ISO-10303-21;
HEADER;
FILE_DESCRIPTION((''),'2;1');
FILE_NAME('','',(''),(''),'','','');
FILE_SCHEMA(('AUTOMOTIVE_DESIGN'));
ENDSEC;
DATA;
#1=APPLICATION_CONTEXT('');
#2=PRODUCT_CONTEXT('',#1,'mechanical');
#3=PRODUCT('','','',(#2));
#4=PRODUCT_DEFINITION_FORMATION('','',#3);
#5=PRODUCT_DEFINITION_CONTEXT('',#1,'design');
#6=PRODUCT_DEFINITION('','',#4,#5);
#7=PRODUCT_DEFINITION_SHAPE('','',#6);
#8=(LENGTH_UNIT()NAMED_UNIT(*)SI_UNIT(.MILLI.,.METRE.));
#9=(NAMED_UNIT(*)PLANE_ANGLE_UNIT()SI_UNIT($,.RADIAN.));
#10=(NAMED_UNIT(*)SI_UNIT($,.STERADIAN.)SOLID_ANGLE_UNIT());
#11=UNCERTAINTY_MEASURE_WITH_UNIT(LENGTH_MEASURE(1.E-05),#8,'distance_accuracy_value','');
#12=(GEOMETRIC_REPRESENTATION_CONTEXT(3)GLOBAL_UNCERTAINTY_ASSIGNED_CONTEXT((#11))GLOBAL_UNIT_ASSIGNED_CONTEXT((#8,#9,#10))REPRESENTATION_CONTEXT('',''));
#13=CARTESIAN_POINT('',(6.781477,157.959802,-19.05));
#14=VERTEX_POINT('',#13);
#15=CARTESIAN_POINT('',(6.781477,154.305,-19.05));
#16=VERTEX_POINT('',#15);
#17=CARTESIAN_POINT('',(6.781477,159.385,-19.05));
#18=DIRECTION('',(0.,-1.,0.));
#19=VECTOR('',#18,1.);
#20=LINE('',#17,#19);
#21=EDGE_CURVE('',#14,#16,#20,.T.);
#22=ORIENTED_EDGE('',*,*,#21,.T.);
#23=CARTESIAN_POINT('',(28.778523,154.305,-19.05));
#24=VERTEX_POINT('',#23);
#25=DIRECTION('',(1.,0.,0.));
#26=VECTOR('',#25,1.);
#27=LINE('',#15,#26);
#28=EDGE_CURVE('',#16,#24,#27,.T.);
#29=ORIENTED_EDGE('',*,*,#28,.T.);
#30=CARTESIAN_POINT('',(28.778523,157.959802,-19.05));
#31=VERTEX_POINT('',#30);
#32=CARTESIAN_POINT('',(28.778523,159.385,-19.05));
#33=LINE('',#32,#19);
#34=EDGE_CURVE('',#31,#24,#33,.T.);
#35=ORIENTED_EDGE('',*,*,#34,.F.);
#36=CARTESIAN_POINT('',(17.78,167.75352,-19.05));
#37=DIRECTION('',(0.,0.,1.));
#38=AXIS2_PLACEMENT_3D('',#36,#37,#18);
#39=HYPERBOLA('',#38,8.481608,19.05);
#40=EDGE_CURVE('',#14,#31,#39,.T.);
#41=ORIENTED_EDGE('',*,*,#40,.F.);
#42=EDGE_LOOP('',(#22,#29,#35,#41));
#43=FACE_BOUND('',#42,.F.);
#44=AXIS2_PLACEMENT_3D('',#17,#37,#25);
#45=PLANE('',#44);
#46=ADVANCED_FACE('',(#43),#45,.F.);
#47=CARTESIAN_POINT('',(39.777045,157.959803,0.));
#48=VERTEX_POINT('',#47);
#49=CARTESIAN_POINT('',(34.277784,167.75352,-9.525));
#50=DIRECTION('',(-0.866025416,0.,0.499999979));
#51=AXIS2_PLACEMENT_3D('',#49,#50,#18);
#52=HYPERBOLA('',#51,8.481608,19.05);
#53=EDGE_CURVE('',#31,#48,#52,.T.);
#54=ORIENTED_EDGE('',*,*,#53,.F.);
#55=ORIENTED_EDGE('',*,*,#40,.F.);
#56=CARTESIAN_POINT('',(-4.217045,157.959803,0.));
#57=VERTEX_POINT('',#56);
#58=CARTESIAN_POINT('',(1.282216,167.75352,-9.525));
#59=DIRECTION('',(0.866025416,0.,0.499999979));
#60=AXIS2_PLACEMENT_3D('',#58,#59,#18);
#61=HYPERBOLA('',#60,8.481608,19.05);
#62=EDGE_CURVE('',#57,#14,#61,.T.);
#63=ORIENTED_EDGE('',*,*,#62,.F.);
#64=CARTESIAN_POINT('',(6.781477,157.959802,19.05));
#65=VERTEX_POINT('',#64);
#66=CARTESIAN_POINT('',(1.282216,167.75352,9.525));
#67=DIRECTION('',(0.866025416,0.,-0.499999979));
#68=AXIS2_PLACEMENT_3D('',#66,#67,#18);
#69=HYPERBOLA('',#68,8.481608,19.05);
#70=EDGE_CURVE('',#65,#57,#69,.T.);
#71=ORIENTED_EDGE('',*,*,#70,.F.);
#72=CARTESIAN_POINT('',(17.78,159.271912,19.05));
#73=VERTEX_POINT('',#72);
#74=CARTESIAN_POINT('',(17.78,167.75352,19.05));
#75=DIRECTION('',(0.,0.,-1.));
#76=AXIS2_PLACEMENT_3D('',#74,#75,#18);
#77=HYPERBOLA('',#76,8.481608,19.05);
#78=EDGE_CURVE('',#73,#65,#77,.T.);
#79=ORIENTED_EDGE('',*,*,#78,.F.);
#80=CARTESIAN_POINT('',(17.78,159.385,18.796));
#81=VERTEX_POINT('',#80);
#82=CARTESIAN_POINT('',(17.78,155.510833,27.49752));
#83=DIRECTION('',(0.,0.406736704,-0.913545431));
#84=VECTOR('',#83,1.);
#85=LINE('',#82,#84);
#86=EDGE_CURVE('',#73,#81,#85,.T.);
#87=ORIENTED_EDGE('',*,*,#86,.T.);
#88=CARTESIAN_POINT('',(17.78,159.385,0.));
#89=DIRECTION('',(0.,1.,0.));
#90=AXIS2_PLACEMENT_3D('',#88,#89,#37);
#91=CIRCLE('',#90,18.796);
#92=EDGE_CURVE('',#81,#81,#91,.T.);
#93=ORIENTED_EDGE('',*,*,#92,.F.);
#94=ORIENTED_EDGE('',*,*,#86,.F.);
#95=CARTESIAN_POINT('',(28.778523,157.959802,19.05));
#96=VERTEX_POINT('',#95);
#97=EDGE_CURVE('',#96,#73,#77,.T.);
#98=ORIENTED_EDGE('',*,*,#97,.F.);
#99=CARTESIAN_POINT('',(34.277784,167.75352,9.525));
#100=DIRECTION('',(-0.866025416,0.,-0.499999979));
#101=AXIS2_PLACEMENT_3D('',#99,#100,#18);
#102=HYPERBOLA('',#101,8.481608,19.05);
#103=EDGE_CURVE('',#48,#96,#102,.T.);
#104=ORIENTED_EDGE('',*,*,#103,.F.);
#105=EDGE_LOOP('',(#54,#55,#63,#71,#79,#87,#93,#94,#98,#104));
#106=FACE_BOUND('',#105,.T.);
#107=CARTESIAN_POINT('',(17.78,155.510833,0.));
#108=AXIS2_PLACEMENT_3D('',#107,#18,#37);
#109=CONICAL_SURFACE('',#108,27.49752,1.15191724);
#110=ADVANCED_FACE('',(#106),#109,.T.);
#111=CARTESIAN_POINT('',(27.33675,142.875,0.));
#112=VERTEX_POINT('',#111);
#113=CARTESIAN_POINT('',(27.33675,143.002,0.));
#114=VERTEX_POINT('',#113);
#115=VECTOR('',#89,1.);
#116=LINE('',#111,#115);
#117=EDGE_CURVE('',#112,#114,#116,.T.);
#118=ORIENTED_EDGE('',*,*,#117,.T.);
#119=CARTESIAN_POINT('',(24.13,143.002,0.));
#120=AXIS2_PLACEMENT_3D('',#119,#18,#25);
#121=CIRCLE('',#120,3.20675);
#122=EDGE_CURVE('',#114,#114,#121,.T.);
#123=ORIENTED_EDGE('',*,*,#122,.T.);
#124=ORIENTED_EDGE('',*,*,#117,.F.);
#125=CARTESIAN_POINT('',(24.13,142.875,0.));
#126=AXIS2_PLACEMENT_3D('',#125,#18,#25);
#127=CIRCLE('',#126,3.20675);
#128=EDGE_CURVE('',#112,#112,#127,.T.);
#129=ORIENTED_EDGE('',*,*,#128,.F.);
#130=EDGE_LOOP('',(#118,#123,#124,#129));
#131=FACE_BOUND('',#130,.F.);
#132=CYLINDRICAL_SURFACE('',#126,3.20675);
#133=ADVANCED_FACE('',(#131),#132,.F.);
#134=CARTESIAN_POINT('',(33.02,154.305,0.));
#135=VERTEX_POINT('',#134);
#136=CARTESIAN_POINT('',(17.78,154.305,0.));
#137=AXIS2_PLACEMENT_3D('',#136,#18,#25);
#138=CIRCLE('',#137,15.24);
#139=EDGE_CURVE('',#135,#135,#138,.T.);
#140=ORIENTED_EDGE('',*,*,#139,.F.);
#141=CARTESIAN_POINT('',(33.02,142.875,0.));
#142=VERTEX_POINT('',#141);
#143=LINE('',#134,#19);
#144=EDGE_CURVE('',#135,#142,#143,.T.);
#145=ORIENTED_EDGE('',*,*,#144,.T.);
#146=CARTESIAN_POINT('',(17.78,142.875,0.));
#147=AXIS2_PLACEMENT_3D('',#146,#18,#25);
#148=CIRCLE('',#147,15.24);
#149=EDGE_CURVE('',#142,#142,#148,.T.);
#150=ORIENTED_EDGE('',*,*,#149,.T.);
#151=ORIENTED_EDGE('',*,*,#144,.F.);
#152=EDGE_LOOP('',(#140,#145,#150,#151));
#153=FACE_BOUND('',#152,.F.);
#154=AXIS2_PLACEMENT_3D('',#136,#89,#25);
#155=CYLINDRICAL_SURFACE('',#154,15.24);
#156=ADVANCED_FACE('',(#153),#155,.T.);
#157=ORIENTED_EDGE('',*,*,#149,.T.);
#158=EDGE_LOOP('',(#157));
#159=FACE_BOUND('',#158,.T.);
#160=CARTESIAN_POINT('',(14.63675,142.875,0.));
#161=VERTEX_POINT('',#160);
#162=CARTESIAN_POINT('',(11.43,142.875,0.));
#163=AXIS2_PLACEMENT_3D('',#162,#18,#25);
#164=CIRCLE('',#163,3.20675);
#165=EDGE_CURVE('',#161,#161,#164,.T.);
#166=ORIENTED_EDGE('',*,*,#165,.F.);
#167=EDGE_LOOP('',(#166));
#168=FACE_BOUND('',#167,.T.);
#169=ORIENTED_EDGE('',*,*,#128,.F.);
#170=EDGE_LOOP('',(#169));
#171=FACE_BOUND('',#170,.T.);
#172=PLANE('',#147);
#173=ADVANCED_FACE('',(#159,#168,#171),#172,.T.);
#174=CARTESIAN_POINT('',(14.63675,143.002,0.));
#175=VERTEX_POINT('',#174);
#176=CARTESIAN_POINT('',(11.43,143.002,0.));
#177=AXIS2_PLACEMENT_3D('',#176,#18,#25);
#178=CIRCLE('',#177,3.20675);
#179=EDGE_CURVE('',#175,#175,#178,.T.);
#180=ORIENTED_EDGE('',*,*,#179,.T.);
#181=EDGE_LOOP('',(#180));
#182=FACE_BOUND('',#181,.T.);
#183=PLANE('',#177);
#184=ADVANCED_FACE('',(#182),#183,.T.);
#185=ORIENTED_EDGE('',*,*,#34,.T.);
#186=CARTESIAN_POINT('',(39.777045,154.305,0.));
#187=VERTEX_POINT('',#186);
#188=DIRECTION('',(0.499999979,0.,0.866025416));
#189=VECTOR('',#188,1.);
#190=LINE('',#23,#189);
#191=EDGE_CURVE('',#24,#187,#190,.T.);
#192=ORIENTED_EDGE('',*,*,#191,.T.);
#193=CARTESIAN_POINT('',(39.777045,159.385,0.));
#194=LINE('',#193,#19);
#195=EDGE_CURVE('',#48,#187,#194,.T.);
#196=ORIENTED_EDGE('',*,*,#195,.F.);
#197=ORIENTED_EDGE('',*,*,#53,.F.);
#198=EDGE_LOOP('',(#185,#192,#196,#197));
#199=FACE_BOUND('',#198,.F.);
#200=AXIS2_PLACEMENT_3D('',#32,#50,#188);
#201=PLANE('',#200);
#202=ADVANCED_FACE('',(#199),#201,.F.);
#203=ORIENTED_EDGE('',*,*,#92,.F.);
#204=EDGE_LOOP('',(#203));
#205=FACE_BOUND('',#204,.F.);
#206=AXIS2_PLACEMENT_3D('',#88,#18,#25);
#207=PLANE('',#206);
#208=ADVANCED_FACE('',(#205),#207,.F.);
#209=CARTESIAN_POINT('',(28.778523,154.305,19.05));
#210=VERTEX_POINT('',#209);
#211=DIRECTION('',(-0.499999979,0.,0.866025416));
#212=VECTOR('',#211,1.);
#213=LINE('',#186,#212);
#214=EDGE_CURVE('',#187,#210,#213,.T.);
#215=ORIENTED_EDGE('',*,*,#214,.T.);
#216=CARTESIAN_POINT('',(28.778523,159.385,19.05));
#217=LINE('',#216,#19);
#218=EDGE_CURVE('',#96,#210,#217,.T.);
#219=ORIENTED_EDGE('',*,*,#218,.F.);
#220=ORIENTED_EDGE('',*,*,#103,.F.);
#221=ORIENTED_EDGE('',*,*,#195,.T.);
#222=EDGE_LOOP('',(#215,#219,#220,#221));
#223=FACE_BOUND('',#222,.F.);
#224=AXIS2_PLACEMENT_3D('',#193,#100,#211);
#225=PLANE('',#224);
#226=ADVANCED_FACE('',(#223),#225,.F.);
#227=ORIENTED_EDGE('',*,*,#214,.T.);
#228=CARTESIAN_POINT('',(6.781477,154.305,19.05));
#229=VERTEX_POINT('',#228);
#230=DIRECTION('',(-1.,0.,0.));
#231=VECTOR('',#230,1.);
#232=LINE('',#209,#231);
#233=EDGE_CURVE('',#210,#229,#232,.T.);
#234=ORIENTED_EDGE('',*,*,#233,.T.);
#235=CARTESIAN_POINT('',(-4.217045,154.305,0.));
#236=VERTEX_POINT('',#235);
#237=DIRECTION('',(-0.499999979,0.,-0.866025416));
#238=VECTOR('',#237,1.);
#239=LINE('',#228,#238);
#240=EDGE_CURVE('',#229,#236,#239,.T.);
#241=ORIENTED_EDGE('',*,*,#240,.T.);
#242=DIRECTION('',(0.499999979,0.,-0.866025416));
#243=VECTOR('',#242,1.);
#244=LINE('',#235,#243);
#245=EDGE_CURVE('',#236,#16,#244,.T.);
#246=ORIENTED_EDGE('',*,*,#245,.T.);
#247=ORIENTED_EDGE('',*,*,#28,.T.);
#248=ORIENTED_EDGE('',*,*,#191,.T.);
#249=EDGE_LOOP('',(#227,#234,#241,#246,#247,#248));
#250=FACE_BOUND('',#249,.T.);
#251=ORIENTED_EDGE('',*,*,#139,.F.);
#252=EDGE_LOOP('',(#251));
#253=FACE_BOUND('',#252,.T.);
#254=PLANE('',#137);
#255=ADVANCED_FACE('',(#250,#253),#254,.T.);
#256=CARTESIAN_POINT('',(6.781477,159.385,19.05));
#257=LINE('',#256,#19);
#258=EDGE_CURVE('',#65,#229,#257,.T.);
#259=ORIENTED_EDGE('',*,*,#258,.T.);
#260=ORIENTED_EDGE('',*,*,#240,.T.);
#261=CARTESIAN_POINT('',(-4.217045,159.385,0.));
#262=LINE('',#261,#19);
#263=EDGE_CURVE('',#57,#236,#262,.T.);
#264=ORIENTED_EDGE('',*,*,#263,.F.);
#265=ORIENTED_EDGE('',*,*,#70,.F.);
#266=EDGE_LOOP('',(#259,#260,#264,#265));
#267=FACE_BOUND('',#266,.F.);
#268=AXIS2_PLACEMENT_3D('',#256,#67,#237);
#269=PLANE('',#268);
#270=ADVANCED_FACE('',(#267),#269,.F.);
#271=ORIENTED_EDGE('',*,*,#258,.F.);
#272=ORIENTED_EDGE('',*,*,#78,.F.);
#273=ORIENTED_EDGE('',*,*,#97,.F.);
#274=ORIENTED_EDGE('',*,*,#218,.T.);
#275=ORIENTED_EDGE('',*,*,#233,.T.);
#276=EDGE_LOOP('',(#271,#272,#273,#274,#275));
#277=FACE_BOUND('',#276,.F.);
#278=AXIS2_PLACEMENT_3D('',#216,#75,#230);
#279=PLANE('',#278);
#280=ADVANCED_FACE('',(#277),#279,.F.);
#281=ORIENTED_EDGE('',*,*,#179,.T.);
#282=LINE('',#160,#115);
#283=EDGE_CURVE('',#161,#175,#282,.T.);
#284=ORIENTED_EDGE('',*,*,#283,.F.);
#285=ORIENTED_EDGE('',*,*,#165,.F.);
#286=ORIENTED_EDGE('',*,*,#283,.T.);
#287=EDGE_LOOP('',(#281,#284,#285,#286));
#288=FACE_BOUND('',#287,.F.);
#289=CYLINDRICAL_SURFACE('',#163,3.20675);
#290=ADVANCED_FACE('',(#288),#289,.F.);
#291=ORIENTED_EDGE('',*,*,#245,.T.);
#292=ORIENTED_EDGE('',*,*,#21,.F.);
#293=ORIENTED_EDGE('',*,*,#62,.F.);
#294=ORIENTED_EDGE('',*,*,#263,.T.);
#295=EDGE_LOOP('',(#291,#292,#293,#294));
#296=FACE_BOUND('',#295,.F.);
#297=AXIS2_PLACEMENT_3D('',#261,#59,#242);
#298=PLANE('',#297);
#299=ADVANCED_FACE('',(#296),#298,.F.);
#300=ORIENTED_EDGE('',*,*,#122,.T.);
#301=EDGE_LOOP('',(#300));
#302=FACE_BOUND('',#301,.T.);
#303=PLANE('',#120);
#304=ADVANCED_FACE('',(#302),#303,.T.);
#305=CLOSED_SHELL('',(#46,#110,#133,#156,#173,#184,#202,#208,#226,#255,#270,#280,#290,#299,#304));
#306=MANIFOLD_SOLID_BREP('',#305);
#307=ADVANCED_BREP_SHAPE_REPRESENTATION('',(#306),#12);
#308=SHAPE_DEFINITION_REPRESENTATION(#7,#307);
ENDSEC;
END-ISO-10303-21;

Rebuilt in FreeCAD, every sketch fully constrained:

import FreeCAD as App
import Part
import Sketcher

V = App.Vector
Q = App.Units.Quantity


def add_polygon(sketch, points):
    """Adds a closed chain of lines whose ends are joined by coincident constraints."""
    first, n = sketch.GeometryCount, len(points)
    for a, b in zip(points, points[1:] + points[:1]):
        sketch.addGeometry(Part.LineSegment(App.Vector(*a, 0), App.Vector(*b, 0)), False)
    for i in range(n):
        sketch.addConstraint(Sketcher.Constraint("Coincident", first + i, 2, first + (i + 1) % n, 1))

doc = App.newDocument("Part")
body = doc.addObject("PartDesign::Body", "Body")

# Sketch on XZ plane
sketch1 = body.newObject("Sketcher::SketchObject", "Sketch")
sketch1.AttachmentSupport = (doc.getObject("XZ_Plane"), [""])
sketch1.MapMode = "FlatFace"
add_polygon(sketch1, [(22, 0), (11, 19), (-11, 19), (-22, 0), (-11, -19), (11, -19)])  # lines 0-5
sketch1.addConstraint([
    Sketcher.Constraint("Horizontal", 1),
    Sketcher.Constraint("Horizontal", 4),
    Sketcher.Constraint("Symmetric", 0, 2, 3, 2, -1, 1),
    Sketcher.Constraint("Symmetric", 2, 2, 5, 2, -1, 1),
    Sketcher.Constraint("PointOnObject", 2, 2, -1),
    Sketcher.Constraint("Parallel", 2, 5),
    Sketcher.Constraint("Vertical", 1, 2, 3, 2),
    Sketcher.Constraint("Angle", 0, Q("119.999999 deg")),
    Sketcher.Constraint("DistanceY", 3, 2, 1, 2, Q("1.5 in")),
    Sketcher.Constraint("DistanceX", 1, 2, 1, 1, 21.997046),
])
pad1 = body.newObject("PartDesign::Pad", "Pad")
pad1.Profile = sketch1
pad1.Length = Q("0.2 in")

# Sketch on XZ plane
sketch2 = body.newObject("Sketcher::SketchObject", "Sketch001")
sketch2.AttachmentSupport = (doc.getObject("XZ_Plane"), [""])
sketch2.MapMode = "FlatFace"
sketch2.AttachmentOffset = App.Placement(V(0, 0, 0.2 * 25.4), App.Rotation())
sketch2.addGeometry(Part.Circle(V(0, 0, 0), V(0, 0, 1), 15), False)
sketch2.addConstraint([
    Sketcher.Constraint("Coincident", 0, 3, -1, 1),
    Sketcher.Constraint("Diameter", 0, Q("1.2 in")),
])
pad2 = body.newObject("PartDesign::Pad", "Pad001")
pad2.Profile = sketch2
pad2.Length = Q("0.45 in")

# Sketch on YZ plane
sketch3 = body.newObject("Sketcher::SketchObject", "Sketch002")
sketch3.AttachmentSupport = (doc.getObject("YZ_Plane"), [""])
sketch3.MapMode = "FlatFace"
add_polygon(sketch3, [(-4, 27), (4, 10), (15, 26)])  # lines 0-2
sketch3.addConstraint([
    Sketcher.Constraint("Equal", 0, 1),
    Sketcher.Constraint("Equal", 1, 2),
    Sketcher.Constraint("Angle", 0, Q("-65.999996 deg")),
    Sketcher.Constraint("Distance", 0, Q("0.75 in")),
    Sketcher.Constraint("DistanceY", -1, 1, 0, 2, 10.09448),
    Sketcher.Constraint("DistanceX", -1, 1, 0, 2, 3.874167),
])
groove = body.newObject("PartDesign::Groove", "Groove")
groove.Profile = sketch3
groove.ReferenceAxis = (sketch3, ["H_Axis"])
groove.Angle = 360

# Sketch on XZ plane
sketch4 = body.newObject("Sketcher::SketchObject", "Sketch003")
sketch4.AttachmentSupport = (doc.getObject("XZ_Plane"), [""])
sketch4.MapMode = "FlatFace"
sketch4.AttachmentOffset = App.Placement(V(0, 0, 0.65 * 25.4), App.Rotation())
sketch4.addGeometry([
    Part.Circle(V(6.3, 0, 0), V(0, 0, 1), 3.2),
    Part.Circle(V(-6.3, 0, 0), V(0, 0, 1), 3.2),
], False)
sketch4.addConstraint([
    Sketcher.Constraint("Equal", 0, 1),
    Sketcher.Constraint("Symmetric", 0, 3, 1, 3, -1, 1),
    Sketcher.Constraint("PointOnObject", 0, 3, -1),
    Sketcher.Constraint("Diameter", 0, Q("0.2525 in")),
    Sketcher.Constraint("DistanceX", 1, 3, 0, 3, Q("0.5 in")),
])
pocket1 = body.newObject("PartDesign::Pocket", "Pocket")
pocket1.Profile = sketch4
pocket1.Length = Q("0.005 in")
body2 = doc.addObject("PartDesign::Body", "Body001")
doc.recompute()

body.Placement = App.Placement(V(17.78, 159.385, 0), App.Rotation(V(0, 0, 1), 0))
boolean = body2.newObject("PartDesign::Boolean", "Boolean")
boolean.Type = "Fuse"
boolean.addObjects([body])

doc.recompute()
